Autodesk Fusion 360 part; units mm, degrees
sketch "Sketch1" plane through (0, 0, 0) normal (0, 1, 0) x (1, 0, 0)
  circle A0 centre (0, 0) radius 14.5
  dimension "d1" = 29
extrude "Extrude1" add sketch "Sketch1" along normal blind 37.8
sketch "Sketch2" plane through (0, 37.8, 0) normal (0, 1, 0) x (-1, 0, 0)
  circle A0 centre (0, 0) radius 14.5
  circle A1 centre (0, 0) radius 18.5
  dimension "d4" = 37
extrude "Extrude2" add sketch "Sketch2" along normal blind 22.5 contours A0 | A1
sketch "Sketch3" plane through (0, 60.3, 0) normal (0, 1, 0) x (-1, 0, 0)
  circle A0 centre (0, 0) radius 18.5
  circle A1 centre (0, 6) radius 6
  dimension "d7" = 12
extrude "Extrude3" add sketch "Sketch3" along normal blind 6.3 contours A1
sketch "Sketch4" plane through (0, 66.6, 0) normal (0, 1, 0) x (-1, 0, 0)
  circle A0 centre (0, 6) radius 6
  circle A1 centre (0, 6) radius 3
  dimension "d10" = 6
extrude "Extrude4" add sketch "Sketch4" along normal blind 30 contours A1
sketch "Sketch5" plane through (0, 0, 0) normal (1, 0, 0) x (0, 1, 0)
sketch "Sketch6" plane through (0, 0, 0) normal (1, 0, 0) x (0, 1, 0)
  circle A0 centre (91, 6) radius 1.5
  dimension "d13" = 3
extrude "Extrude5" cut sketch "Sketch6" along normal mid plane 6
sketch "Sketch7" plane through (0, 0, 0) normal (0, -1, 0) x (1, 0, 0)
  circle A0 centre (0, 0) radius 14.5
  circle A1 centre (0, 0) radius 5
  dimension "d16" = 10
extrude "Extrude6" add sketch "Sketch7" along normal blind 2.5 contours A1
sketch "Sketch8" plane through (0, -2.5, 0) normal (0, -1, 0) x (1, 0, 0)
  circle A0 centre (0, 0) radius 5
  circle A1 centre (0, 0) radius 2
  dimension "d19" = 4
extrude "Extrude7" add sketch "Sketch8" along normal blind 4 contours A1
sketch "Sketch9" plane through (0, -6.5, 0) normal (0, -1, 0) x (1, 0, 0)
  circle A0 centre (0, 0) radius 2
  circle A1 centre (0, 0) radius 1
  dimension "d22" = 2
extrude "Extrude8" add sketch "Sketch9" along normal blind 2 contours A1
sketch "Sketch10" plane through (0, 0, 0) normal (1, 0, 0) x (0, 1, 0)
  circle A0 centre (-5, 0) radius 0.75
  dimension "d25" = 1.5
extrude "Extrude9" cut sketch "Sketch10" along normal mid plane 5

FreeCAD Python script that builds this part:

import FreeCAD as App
import Part
import Sketcher
from FreeCAD import Vector
Q = App.Units.Quantity

doc = App.newDocument("Part")
body = doc.addObject("PartDesign::Body", "Body")

# Sketch on XZ plane
sketch1 = body.newObject("Sketcher::SketchObject", "Sketch")
sketch1.AttachmentSupport = (doc.getObject("XZ_Plane"), [""])
sketch1.MapMode = "FlatFace"
sketch1.addGeometry(Part.Circle(Vector(0, 0, 0), Vector(0, 0, 1), 14), False)
sketch1.addConstraint(Sketcher.Constraint("Coincident", 0, 3, -1, 1))
sketch1.addConstraint(Sketcher.Constraint("Diameter", 0, Q("29 mm")))
pad1 = body.newObject("PartDesign::Pad", "Pad")
pad1.Profile = sketch1
pad1.Length = 37.8
pad1.Reversed = True

# Sketch on XZ plane
sketch2 = body.newObject("Sketcher::SketchObject", "Sketch001")
sketch2.AttachmentSupport = (doc.getObject("XZ_Plane"), [""])
sketch2.MapMode = "FlatFace"
sketch2.AttachmentOffset = App.Placement(Vector(0, 0, -37.8), App.Rotation())
sketch2.addGeometry(Part.Circle(Vector(0, 0, 0), Vector(0, 0, 1), 18), False)
sketch2.addConstraint(Sketcher.Constraint("Coincident", 0, 3, -1, 1))
sketch2.addConstraint(Sketcher.Constraint("Diameter", 0, Q("37 mm")))
pad2 = body.newObject("PartDesign::Pad", "Pad001")
pad2.Profile = sketch2
pad2.Length = 22.5
pad2.Reversed = True

# Sketch on XZ plane
sketch3 = body.newObject("Sketcher::SketchObject", "Sketch002")
sketch3.AttachmentSupport = (doc.getObject("XZ_Plane"), [""])
sketch3.MapMode = "FlatFace"
sketch3.AttachmentOffset = App.Placement(Vector(0, 0, -60.3), App.Rotation())
sketch3.addGeometry(Part.Circle(Vector(0, 6, 0), Vector(0, 0, 1), 6), False)
sketch3.addConstraint(Sketcher.Constraint("PointOnObject", 0, 3, -2))
sketch3.addConstraint(Sketcher.Constraint("Diameter", 0, Q("12 mm")))
sketch3.addConstraint(Sketcher.Constraint("DistanceY", -1, 1, 0, 3, Q("6 mm")))
pad3 = body.newObject("PartDesign::Pad", "Pad002")
pad3.Profile = sketch3
pad3.Length = 6.3
pad3.Reversed = True

# Sketch on XZ plane
sketch4 = body.newObject("Sketcher::SketchObject", "Sketch003")
sketch4.AttachmentSupport = (doc.getObject("XZ_Plane"), [""])
sketch4.MapMode = "FlatFace"
sketch4.AttachmentOffset = App.Placement(Vector(0, 0, -66.6), App.Rotation())
sketch4.addGeometry(Part.Circle(Vector(0, 6, 0), Vector(0, 0, 1), 3), False)
sketch4.addConstraint(Sketcher.Constraint("PointOnObject", 0, 3, -2))
sketch4.addConstraint(Sketcher.Constraint("Diameter", 0, Q("6 mm")))
sketch4.addConstraint(Sketcher.Constraint("DistanceY", -1, 1, 0, 3, Q("6 mm")))
pad4 = body.newObject("PartDesign::Pad", "Pad003")
pad4.Profile = sketch4
pad4.Length = 30
pad4.Reversed = True

# Sketch on YZ plane
sketch5 = body.newObject("Sketcher::SketchObject", "Sketch004")
sketch5.AttachmentSupport = (doc.getObject("YZ_Plane"), [""])
sketch5.MapMode = "FlatFace"
sketch5.addGeometry(Part.Circle(Vector(91, 6, 0), Vector(0, 0, 1), 1.5), False)
sketch5.addConstraint(Sketcher.Constraint("Diameter", 0, Q("3 mm")))
sketch5.addConstraint(Sketcher.Constraint("DistanceX", -1, 1, 0, 3, Q("91 mm")))
sketch5.addConstraint(Sketcher.Constraint("DistanceY", -1, 1, 0, 3, Q("6 mm")))
pocket1 = body.newObject("PartDesign::Pocket", "Pocket")
pocket1.Profile = sketch5
pocket1.Length = 6
pocket1.Midplane = True

# Sketch on XZ plane
sketch6 = body.newObject("Sketcher::SketchObject", "Sketch005")
sketch6.AttachmentSupport = (doc.getObject("XZ_Plane"), [""])
sketch6.MapMode = "FlatFace"
sketch6.addGeometry(Part.Circle(Vector(0, 0, 0), Vector(0, 0, 1), 5), False)
sketch6.addConstraint(Sketcher.Constraint("Coincident", 0, 3, -1, 1))
sketch6.addConstraint(Sketcher.Constraint("Diameter", 0, Q("10 mm")))
pad5 = body.newObject("PartDesign::Pad", "Pad004")
pad5.Profile = sketch6
pad5.Length = 2.5

# Sketch on XZ plane
sketch7 = body.newObject("Sketcher::SketchObject", "Sketch006")
sketch7.AttachmentSupport = (doc.getObject("XZ_Plane"), [""])
sketch7.MapMode = "FlatFace"
sketch7.AttachmentOffset = App.Placement(Vector(0, 0, 2.5), App.Rotation())
sketch7.addGeometry(Part.Circle(Vector(0, 0, 0), Vector(0, 0, 1), 2), False)
sketch7.addConstraint(Sketcher.Constraint("Coincident", 0, 3, -1, 1))
sketch7.addConstraint(Sketcher.Constraint("Diameter", 0, Q("4 mm")))
pad6 = body.newObject("PartDesign::Pad", "Pad005")
pad6.Profile = sketch7
pad6.Length = 4

# Sketch on XZ plane
sketch8 = body.newObject("Sketcher::SketchObject", "Sketch007")
sketch8.AttachmentSupport = (doc.getObject("XZ_Plane"), [""])
sketch8.MapMode = "FlatFace"
sketch8.AttachmentOffset = App.Placement(Vector(0, 0, 6.5), App.Rotation())
sketch8.addGeometry(Part.Circle(Vector(0, 0, 0), Vector(0, 0, 1), 1), False)
sketch8.addConstraint(Sketcher.Constraint("Coincident", 0, 3, -1, 1))
sketch8.addConstraint(Sketcher.Constraint("Diameter", 0, Q("2 mm")))
pad7 = body.newObject("PartDesign::Pad", "Pad006")
pad7.Profile = sketch8
pad7.Length = 2

# Sketch on YZ plane
sketch9 = body.newObject("Sketcher::SketchObject", "Sketch008")
sketch9.AttachmentSupport = (doc.getObject("YZ_Plane"), [""])
sketch9.MapMode = "FlatFace"
sketch9.addGeometry(Part.Circle(Vector(-5, 0, 0), Vector(0, 0, 1), 0.8), False)
sketch9.addConstraint(Sketcher.Constraint("PointOnObject", 0, 3, -1))
sketch9.addConstraint(Sketcher.Constraint("Diameter", 0, Q("1.5 mm")))
sketch9.addConstraint(Sketcher.Constraint("DistanceX", 0, 3, -1, 1, Q("5 mm")))
pocket2 = body.newObject("PartDesign::Pocket", "Pocket001")
pocket2.Profile = sketch9
pocket2.Length = 5
pocket2.Midplane = True

doc.recompute()
